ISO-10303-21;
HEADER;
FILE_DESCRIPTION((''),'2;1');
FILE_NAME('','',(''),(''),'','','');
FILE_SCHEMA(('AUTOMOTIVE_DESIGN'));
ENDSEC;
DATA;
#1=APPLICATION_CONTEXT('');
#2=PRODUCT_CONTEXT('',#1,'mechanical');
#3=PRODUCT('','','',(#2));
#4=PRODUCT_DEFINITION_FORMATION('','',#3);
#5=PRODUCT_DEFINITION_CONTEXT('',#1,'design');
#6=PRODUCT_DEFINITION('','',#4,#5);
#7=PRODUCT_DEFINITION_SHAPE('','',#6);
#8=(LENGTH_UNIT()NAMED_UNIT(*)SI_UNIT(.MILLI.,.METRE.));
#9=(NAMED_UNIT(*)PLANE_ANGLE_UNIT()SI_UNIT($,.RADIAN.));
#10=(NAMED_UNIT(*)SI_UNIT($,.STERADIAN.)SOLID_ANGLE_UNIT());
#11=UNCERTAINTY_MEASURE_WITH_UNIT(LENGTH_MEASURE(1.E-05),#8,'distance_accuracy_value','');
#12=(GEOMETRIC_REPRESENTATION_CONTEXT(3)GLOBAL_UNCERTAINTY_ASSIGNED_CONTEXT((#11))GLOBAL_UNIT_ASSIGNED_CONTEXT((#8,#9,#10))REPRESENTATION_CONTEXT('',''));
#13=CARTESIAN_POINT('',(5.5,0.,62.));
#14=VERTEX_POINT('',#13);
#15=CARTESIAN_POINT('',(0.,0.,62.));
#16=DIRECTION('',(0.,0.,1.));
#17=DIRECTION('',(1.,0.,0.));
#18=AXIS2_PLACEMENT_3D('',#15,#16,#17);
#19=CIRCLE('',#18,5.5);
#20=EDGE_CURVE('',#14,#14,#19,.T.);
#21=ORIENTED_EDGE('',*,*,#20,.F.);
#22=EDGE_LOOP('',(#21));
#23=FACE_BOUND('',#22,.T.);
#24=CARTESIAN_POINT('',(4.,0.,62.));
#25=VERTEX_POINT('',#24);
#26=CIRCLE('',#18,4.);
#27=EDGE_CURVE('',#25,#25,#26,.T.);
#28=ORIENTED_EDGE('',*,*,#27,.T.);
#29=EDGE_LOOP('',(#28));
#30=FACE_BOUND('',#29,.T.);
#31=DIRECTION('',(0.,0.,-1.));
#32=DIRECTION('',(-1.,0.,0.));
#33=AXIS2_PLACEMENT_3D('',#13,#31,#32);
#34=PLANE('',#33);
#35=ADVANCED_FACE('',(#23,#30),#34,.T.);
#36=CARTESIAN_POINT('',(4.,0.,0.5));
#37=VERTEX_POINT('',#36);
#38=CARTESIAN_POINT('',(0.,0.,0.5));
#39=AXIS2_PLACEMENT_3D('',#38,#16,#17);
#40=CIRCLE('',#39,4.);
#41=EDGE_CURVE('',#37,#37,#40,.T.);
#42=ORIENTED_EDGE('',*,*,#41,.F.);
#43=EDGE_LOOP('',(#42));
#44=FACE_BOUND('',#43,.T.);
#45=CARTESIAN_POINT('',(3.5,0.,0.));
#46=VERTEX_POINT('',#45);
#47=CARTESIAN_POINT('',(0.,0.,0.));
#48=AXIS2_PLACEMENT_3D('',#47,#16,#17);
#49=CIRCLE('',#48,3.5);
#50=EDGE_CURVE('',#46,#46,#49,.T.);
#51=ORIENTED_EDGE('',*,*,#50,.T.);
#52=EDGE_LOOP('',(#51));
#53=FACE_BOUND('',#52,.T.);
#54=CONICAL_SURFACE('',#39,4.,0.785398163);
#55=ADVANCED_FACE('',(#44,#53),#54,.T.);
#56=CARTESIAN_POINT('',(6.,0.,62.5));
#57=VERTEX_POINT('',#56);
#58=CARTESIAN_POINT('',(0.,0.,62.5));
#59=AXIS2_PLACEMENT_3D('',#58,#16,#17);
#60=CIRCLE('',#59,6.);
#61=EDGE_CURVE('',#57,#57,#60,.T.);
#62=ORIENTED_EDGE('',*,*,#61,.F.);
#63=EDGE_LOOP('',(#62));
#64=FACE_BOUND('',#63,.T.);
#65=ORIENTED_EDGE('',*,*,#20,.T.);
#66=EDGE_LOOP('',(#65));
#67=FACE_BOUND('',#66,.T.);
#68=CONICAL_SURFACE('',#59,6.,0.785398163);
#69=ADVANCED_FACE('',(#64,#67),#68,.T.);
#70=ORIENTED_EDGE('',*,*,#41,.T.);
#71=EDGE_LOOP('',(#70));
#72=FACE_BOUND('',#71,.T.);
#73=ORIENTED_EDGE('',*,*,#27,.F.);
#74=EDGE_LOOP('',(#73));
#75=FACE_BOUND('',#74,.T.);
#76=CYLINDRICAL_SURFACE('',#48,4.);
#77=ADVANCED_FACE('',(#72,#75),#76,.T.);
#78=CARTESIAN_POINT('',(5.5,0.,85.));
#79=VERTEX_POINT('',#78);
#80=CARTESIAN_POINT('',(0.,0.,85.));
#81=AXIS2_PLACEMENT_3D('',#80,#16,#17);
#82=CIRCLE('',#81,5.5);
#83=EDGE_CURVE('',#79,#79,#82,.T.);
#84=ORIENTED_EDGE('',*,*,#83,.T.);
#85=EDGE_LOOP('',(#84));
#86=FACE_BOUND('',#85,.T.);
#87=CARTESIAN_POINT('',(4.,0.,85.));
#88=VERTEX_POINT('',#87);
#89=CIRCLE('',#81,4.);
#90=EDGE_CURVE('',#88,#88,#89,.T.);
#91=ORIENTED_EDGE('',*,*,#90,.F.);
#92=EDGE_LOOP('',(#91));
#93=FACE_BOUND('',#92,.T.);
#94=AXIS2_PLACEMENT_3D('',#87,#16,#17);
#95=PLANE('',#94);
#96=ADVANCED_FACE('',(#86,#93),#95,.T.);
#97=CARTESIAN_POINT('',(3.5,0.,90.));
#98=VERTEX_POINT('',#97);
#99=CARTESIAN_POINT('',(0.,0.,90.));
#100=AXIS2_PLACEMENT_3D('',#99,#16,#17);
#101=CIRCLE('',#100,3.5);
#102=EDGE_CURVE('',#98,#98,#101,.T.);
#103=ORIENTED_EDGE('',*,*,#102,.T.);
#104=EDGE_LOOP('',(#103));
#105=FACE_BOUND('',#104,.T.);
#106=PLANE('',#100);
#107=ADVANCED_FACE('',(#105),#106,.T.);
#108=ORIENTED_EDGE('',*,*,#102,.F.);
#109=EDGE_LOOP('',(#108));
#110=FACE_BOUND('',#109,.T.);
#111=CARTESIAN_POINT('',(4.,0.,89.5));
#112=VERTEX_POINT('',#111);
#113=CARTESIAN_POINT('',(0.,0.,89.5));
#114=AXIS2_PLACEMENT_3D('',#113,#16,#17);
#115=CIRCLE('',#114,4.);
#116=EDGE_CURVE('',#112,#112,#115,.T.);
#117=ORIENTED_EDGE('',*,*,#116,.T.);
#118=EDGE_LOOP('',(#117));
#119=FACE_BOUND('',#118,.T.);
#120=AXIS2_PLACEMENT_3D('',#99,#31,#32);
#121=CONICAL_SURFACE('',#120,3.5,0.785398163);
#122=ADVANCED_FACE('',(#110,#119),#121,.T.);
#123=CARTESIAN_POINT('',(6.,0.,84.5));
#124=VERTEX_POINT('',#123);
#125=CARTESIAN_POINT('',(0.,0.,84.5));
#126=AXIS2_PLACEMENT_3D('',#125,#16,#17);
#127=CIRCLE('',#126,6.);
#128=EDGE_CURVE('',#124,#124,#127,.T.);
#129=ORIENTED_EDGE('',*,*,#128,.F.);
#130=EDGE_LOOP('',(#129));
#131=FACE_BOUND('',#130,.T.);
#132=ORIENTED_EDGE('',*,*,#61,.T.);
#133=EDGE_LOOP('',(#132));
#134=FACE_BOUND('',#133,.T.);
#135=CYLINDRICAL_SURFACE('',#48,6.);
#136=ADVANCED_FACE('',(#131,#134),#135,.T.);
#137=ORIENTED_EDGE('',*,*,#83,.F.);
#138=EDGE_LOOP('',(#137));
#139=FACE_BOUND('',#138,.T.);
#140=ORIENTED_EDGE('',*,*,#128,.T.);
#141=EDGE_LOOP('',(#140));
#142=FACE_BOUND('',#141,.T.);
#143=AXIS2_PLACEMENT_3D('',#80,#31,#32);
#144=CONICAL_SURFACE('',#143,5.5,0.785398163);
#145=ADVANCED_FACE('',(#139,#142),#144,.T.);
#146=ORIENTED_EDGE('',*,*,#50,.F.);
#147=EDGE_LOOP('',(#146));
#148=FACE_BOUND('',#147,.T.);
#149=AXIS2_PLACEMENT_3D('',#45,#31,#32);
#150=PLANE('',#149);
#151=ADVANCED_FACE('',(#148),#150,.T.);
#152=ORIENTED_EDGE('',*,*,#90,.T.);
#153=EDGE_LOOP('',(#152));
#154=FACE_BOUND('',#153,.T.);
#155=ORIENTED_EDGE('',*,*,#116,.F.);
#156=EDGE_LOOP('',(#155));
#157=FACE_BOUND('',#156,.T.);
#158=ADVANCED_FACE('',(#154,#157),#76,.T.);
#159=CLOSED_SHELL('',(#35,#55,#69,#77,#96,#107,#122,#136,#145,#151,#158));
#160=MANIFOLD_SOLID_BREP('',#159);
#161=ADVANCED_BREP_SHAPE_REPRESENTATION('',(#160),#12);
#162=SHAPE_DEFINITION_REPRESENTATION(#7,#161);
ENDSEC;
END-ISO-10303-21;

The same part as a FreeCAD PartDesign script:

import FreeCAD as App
import Part
import Sketcher
Q = App.Units.Quantity

doc = App.newDocument("Part")
body = doc.addObject("PartDesign::Body", "Body")

sketch1 = body.newObject("Sketcher::SketchObject", "Sketch")
sketch1.AttachmentSupport = (doc.getObject("XZ_Plane"), [""])
sketch1.MapMode = "FlatFace"
sketch1.addGeometry([
    Part.LineSegment(App.Vector(3.5, 0, 0), App.Vector(0, 0, 0)),
    Part.LineSegment(App.Vector(0, 0, 0), App.Vector(0, 90, 0)),
    Part.LineSegment(App.Vector(0, 90, 0), App.Vector(3.5, 90, 0)),
    Part.LineSegment(App.Vector(3.5, 90, 0), App.Vector(4, 89.5, 0)),
    Part.LineSegment(App.Vector(4, 89.5, 0), App.Vector(4, 85, 0)),
    Part.LineSegment(App.Vector(4, 85, 0), App.Vector(5.5, 85, 0)),
    Part.LineSegment(App.Vector(5.5, 85, 0), App.Vector(6, 84.5, 0)),
    Part.LineSegment(App.Vector(6, 84.5, 0), App.Vector(6, 62.5, 0)),
    Part.LineSegment(App.Vector(6, 62.5, 0), App.Vector(5.5, 62, 0)),
    Part.LineSegment(App.Vector(5.5, 62, 0), App.Vector(4, 62, 0)),
    Part.LineSegment(App.Vector(4, 62, 0), App.Vector(4, 0.5, 0)),
    Part.LineSegment(App.Vector(4, 0.5, 0), App.Vector(3.5, 0, 0)),
], False)
sketch1.addConstraint([
    Sketcher.Constraint("Coincident", 0, 2, 1, 1),
    Sketcher.Constraint("Coincident", 1, 2, 2, 1),
    Sketcher.Constraint("Coincident", 2, 2, 3, 1),
    Sketcher.Constraint("Coincident", 3, 2, 4, 1),
    Sketcher.Constraint("Coincident", 4, 2, 5, 1),
    Sketcher.Constraint("Coincident", 5, 2, 6, 1),
    Sketcher.Constraint("Coincident", 6, 2, 7, 1),
    Sketcher.Constraint("Coincident", 7, 2, 8, 1),
    Sketcher.Constraint("Coincident", 8, 2, 9, 1),
    Sketcher.Constraint("Coincident", 9, 2, 10, 1),
    Sketcher.Constraint("Coincident", 10, 2, 11, 1),
    Sketcher.Constraint("Coincident", 11, 2, 0, 1),
    Sketcher.Constraint("Horizontal", 0),
    Sketcher.Constraint("Vertical", 1),
    Sketcher.Constraint("Horizontal", 2),
    Sketcher.Constraint("Vertical", 4),
    Sketcher.Constraint("Horizontal", 5),
    Sketcher.Constraint("Vertical", 7),
    Sketcher.Constraint("Horizontal", 9),
    Sketcher.Constraint("Vertical", 10),
    Sketcher.Constraint("Coincident", 0, 2, -1, 1),
    Sketcher.Constraint("Parallel", 3, 6),
    Sketcher.Constraint("Perpendicular", 6, 8),
    Sketcher.Constraint("Parallel", 8, 11),
    Sketcher.Constraint("Vertical", 5, 2, 8, 2),
    Sketcher.Constraint("Vertical", 4, 2, 9, 2),
    Sketcher.Constraint("Vertical", 2, 2, 11, 2),
    Sketcher.Constraint("Equal", 3, 6),
    Sketcher.Constraint("Equal", 6, 8),
    Sketcher.Constraint("DistanceY", 1, 1, 1, 2, Q("90 mm")),
    Sketcher.Constraint("DistanceY", 7, 2, 7, 1, Q("22 mm")),
    Sketcher.Constraint("DistanceX", 0, 2, 0, 1, Q("3.5 mm")),
    Sketcher.Constraint("DistanceX", 5, 1, 5, 2, Q("1.5 mm")),
    Sketcher.Constraint("DistanceY", 4, 2, 4, 1, Q("4.5 mm")),
    Sketcher.Constraint("DistanceY", 10, 2, 10, 1, Q("61.5 mm")),
])
revolution = body.newObject("PartDesign::Revolution", "Revolution")
revolution.Profile = sketch1
revolution.ReferenceAxis = (sketch1, ["V_Axis"])
revolution.Angle = 360

doc.recompute()
